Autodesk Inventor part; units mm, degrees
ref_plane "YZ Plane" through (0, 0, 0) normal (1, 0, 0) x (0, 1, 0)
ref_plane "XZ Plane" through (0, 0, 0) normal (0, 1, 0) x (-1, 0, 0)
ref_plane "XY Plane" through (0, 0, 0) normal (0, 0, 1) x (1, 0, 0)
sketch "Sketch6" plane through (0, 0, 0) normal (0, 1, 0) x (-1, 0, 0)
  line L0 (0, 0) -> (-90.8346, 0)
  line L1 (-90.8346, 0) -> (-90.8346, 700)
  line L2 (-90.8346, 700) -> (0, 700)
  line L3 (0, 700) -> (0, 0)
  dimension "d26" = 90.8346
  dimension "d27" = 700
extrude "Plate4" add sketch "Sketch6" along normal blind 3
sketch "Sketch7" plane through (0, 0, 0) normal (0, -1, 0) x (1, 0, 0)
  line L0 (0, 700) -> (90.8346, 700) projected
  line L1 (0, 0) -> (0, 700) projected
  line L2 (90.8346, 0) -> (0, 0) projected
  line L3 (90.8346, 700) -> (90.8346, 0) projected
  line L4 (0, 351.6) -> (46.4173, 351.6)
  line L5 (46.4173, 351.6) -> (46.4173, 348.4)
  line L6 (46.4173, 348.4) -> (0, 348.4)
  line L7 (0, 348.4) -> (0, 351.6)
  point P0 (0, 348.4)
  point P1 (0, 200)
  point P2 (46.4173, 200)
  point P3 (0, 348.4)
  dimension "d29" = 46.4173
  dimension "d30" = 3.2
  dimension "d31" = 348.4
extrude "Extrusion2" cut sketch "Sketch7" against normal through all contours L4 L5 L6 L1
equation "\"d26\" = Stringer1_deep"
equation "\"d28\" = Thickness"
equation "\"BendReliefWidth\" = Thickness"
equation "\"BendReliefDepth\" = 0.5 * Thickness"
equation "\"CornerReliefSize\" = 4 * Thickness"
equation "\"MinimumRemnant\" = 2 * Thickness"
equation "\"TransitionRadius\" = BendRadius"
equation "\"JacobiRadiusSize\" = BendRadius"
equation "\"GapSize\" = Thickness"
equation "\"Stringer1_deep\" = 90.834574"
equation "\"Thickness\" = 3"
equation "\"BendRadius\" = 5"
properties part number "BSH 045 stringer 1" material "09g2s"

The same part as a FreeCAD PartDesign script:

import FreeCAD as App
import Part
import Sketcher

V = App.Vector
Q = App.Units.Quantity

doc = App.newDocument("Part")
params = doc.addObject("Spreadsheet::Sheet", "Params")
for row, (alias, value) in enumerate([
    ("sketch1_height", "700 mm"),
    ("pad1_length", "3 mm"),
    ("sketch2_height", "3.2 mm"),
], start=1):
    params.set(f"A{row}", alias)
    params.set(f"B{row}", "=" + value)
    params.setAlias(f"B{row}", alias)

body = doc.addObject("PartDesign::Body", "Body")

# Sketch on XZ plane
sketch1 = body.newObject("Sketcher::SketchObject", "Sketch")
sketch1.AttachmentSupport = (doc.getObject("XZ_Plane"), [""])
sketch1.MapMode = "FlatFace"
sketch1.addGeometry([
    Part.LineSegment(V(90.8346, 0, 0), V(0, 0, 0)),
    Part.LineSegment(V(0, 0, 0), V(0, 700, 0)),
    Part.LineSegment(V(0, 700, 0), V(90.8346, 700, 0)),
    Part.LineSegment(V(90.8346, 700, 0), V(90.8346, 0, 0)),
], False)
sketch1.addConstraint([
    Sketcher.Constraint("Coincident", 0, 2, 1, 1),
    Sketcher.Constraint("Coincident", 1, 2, 2, 1),
    Sketcher.Constraint("Coincident", 2, 2, 3, 1),
    Sketcher.Constraint("Coincident", 3, 2, 0, 1),
    Sketcher.Constraint("Horizontal", 0),
    Sketcher.Constraint("Vertical", 1),
    Sketcher.Constraint("Horizontal", 2),
    Sketcher.Constraint("Vertical", 3),
    Sketcher.Constraint("Coincident", 0, 2, -1, 1),
    Sketcher.Constraint("DistanceY", 1, 1, 1, 2, Q("700 mm")),
    Sketcher.Constraint("DistanceX", 0, 2, 0, 1, Q("90.8346 mm")),
])
sketch1.setExpression("Constraints[9]", "Params.sketch1_height")
pad1 = body.newObject("PartDesign::Pad", "Pad")
pad1.Profile = sketch1
pad1.setExpression("Length", "Params.pad1_length")
pad1.Reversed = True

# Sketch on XZ plane
sketch2 = body.newObject("Sketcher::SketchObject", "Sketch001")
sketch2.AttachmentSupport = (doc.getObject("XZ_Plane"), [""])
sketch2.MapMode = "FlatFace"
sketch2.addGeometry([
    Part.LineSegment(V(46.4173, 351.6, 0), V(0, 351.6, 0)),
    Part.LineSegment(V(0, 351.6, 0), V(0, 348.4, 0)),
    Part.LineSegment(V(0, 348.4, 0), V(46.4173, 348.4, 0)),
    Part.LineSegment(V(46.4173, 348.4, 0), V(46.4173, 351.6, 0)),
], False)
sketch2.addConstraint([
    Sketcher.Constraint("Coincident", 0, 2, 1, 1),
    Sketcher.Constraint("Coincident", 1, 2, 2, 1),
    Sketcher.Constraint("Coincident", 2, 2, 3, 1),
    Sketcher.Constraint("Coincident", 3, 2, 0, 1),
    Sketcher.Constraint("Horizontal", 0),
    Sketcher.Constraint("Vertical", 1),
    Sketcher.Constraint("Horizontal", 2),
    Sketcher.Constraint("Vertical", 3),
    Sketcher.Constraint("PointOnObject", 0, 2, -2),
    Sketcher.Constraint("DistanceY", 1, 2, 1, 1, Q("3.2 mm")),
    Sketcher.Constraint("DistanceY", -1, 1, 1, 2, Q("348.4 mm")),
    Sketcher.Constraint("DistanceX", 0, 2, 0, 1, Q("46.4173 mm")),
])
sketch2.setExpression("Constraints[9]", "Params.sketch2_height")
pocket1 = body.newObject("PartDesign::Pocket", "Pocket")
pocket1.Profile = sketch2
pocket1.Type = "ThroughAll"

doc.recompute()
